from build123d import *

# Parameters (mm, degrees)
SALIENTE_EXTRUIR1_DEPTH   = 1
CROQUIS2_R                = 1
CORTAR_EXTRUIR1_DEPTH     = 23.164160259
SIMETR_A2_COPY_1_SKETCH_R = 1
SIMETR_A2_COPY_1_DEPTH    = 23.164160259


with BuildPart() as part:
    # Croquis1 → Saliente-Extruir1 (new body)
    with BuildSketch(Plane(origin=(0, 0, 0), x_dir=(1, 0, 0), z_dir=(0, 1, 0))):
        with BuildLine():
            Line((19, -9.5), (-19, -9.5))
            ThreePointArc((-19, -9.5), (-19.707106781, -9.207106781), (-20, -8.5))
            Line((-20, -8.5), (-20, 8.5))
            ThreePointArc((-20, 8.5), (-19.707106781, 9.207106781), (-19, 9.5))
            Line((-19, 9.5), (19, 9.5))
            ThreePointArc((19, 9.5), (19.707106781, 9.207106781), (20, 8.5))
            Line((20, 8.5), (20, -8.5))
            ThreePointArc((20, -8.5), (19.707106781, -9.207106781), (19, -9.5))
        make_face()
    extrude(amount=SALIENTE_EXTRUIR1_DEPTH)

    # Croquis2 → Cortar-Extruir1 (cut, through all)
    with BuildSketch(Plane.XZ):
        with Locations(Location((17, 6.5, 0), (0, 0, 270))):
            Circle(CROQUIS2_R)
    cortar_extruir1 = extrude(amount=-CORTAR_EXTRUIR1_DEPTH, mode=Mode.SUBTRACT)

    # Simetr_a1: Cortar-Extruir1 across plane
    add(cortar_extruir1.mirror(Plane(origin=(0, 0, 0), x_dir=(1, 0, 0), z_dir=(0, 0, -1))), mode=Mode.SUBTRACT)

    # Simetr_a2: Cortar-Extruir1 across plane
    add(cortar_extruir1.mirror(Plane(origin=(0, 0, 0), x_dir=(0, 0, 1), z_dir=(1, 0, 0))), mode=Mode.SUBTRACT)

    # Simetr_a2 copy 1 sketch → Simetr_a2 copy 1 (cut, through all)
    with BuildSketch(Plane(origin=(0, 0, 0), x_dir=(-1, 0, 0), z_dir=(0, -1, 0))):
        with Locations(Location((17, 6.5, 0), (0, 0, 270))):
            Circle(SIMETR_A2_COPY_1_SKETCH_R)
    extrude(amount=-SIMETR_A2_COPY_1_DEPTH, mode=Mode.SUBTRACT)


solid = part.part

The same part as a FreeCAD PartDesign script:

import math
import FreeCAD as App
import Part
import Sketcher
from FreeCAD import Vector

doc = App.newDocument("Part")
params = doc.addObject("Spreadsheet::Sheet", "Params")
for row, (alias, value) in enumerate([
    ("sketch1_radius", "1 mm"),
    ("sketch1_width", "38 mm"),
    ("sketch1_height", "17 mm"),
    ("pad1_length", "1 mm"),
    ("sketch2_diameter", "2 mm"),
    ("sketch3_diameter", "2 mm"),
], start=1):
    params.set(f"A{row}", alias)
    params.set(f"B{row}", "=" + value)
    params.setAlias(f"B{row}", alias)

body = doc.addObject("PartDesign::Body", "Body")

# Sketch on XZ plane
sketch1 = body.newObject("Sketcher::SketchObject", "Sketch")
sketch1.AttachmentSupport = (doc.getObject("XZ_Plane"), [""])
sketch1.MapMode = "FlatFace"
sketch1.addGeometry([
    Part.LineSegment(Vector(-19, 9.5, 0), Vector(19, 9.5, 0)),  # 0
    Part.ArcOfCircle(Part.Circle(Vector(19, 8.5, 0), Vector(0, 0, 1), 1), math.radians(0), math.radians(90)),  # 1
    Part.LineSegment(Vector(20, 8.5, 0), Vector(20, -8.5, 0)),  # 2
    Part.ArcOfCircle(Part.Circle(Vector(19, -8.5, 0), Vector(0, 0, 1), 1), math.radians(-90), math.radians(0)),  # 3
    Part.LineSegment(Vector(19, -9.5, 0), Vector(-19, -9.5, 0)),  # 4
    Part.ArcOfCircle(Part.Circle(Vector(-19, -8.5, 0), Vector(0, 0, 1), 1), math.radians(-180), math.radians(-90)),  # 5
    Part.LineSegment(Vector(-20, -8.5, 0), Vector(-20, 8.5, 0)),  # 6
    Part.ArcOfCircle(Part.Circle(Vector(-19, 8.5, 0), Vector(0, 0, 1), 1), math.radians(90), math.radians(180)),  # 7
], False)
sketch1.addConstraint([
    Sketcher.Constraint("Tangent", 0, 2, 1, 2),
    Sketcher.Constraint("Tangent", 1, 1, 2, 1),
    Sketcher.Constraint("Tangent", 2, 2, 3, 2),
    Sketcher.Constraint("Tangent", 3, 1, 4, 1),
    Sketcher.Constraint("Tangent", 4, 2, 5, 2),
    Sketcher.Constraint("Tangent", 5, 1, 6, 1),
    Sketcher.Constraint("Tangent", 6, 2, 7, 2),
    Sketcher.Constraint("Tangent", 7, 1, 0, 1),
    Sketcher.Constraint("Horizontal", 0),
    Sketcher.Constraint("Vertical", 2),
    Sketcher.Constraint("Horizontal", 4),
    Sketcher.Constraint("Vertical", 6),
    Sketcher.Constraint("Equal", 1, 3),
    Sketcher.Constraint("Equal", 3, 5),
    Sketcher.Constraint("Equal", 5, 7),
    Sketcher.Constraint("Symmetric", 1, 3, 5, 3, -1, 1),
    Sketcher.Constraint("Radius", 1, 1.0),
    Sketcher.Constraint("DistanceX", 0, 1, 0, 2, 38.0),
    Sketcher.Constraint("DistanceY", 2, 2, 2, 1, 17.0),
])
sketch1.setExpression("Constraints[16]", "Params.sketch1_radius")
sketch1.setExpression("Constraints[17]", "Params.sketch1_width")
sketch1.setExpression("Constraints[18]", "Params.sketch1_height")
pad1 = body.newObject("PartDesign::Pad", "Pad")
pad1.Profile = sketch1
pad1.setExpression("Length", "Params.pad1_length")
pad1.Reversed = True

# Sketch on XZ plane
sketch2 = body.newObject("Sketcher::SketchObject", "Sketch001")
sketch2.AttachmentSupport = (doc.getObject("XZ_Plane"), [""])
sketch2.MapMode = "FlatFace"
sketch2.addGeometry(Part.Circle(Vector(17, 6.5, 0), Vector(0, 0, 1), 1), False)
sketch2.addConstraint([
    Sketcher.Constraint("Diameter", 0, 2.0),
    Sketcher.Constraint("DistanceX", -1, 1, 0, 3, 17.0),
    Sketcher.Constraint("DistanceY", -1, 1, 0, 3, 6.5),
])
sketch2.setExpression("Constraints[0]", "Params.sketch2_diameter")
pocket1 = body.newObject("PartDesign::Pocket", "Pocket")
pocket1.Profile = sketch2
pocket1.Type = "ThroughAll"
doc.recompute()

mirrored = body.newObject("PartDesign::Mirrored", "Mirrored")
mirrored.Originals = [pocket1]
mirrored.MirrorPlane = (doc.getObject("XY_Plane"), [""])
body.Tip = mirrored
doc.recompute()

mirrored2 = body.newObject("PartDesign::Mirrored", "Mirrored001")
mirrored2.Originals = [pocket1]
mirrored2.MirrorPlane = (doc.getObject("YZ_Plane"), [""])
body.Tip = mirrored2

# Sketch on XZ plane
sketch3 = body.newObject("Sketcher::SketchObject", "Sketch002")
sketch3.AttachmentSupport = (doc.getObject("XZ_Plane"), [""])
sketch3.MapMode = "FlatFace"
sketch3.addGeometry(Part.Circle(Vector(-17, -6.5, 0), Vector(0, 0, 1), 1), False)
sketch3.addConstraint([
    Sketcher.Constraint("Diameter", 0, 2.0),
    Sketcher.Constraint("DistanceX", 0, 3, -1, 1, 17.0),
    Sketcher.Constraint("DistanceY", 0, 3, -1, 1, 6.5),
])
sketch3.setExpression("Constraints[0]", "Params.sketch3_diameter")
pocket2 = body.newObject("PartDesign::Pocket", "Pocket001")
pocket2.Profile = sketch3
pocket2.Type = "ThroughAll"

doc.recompute()
